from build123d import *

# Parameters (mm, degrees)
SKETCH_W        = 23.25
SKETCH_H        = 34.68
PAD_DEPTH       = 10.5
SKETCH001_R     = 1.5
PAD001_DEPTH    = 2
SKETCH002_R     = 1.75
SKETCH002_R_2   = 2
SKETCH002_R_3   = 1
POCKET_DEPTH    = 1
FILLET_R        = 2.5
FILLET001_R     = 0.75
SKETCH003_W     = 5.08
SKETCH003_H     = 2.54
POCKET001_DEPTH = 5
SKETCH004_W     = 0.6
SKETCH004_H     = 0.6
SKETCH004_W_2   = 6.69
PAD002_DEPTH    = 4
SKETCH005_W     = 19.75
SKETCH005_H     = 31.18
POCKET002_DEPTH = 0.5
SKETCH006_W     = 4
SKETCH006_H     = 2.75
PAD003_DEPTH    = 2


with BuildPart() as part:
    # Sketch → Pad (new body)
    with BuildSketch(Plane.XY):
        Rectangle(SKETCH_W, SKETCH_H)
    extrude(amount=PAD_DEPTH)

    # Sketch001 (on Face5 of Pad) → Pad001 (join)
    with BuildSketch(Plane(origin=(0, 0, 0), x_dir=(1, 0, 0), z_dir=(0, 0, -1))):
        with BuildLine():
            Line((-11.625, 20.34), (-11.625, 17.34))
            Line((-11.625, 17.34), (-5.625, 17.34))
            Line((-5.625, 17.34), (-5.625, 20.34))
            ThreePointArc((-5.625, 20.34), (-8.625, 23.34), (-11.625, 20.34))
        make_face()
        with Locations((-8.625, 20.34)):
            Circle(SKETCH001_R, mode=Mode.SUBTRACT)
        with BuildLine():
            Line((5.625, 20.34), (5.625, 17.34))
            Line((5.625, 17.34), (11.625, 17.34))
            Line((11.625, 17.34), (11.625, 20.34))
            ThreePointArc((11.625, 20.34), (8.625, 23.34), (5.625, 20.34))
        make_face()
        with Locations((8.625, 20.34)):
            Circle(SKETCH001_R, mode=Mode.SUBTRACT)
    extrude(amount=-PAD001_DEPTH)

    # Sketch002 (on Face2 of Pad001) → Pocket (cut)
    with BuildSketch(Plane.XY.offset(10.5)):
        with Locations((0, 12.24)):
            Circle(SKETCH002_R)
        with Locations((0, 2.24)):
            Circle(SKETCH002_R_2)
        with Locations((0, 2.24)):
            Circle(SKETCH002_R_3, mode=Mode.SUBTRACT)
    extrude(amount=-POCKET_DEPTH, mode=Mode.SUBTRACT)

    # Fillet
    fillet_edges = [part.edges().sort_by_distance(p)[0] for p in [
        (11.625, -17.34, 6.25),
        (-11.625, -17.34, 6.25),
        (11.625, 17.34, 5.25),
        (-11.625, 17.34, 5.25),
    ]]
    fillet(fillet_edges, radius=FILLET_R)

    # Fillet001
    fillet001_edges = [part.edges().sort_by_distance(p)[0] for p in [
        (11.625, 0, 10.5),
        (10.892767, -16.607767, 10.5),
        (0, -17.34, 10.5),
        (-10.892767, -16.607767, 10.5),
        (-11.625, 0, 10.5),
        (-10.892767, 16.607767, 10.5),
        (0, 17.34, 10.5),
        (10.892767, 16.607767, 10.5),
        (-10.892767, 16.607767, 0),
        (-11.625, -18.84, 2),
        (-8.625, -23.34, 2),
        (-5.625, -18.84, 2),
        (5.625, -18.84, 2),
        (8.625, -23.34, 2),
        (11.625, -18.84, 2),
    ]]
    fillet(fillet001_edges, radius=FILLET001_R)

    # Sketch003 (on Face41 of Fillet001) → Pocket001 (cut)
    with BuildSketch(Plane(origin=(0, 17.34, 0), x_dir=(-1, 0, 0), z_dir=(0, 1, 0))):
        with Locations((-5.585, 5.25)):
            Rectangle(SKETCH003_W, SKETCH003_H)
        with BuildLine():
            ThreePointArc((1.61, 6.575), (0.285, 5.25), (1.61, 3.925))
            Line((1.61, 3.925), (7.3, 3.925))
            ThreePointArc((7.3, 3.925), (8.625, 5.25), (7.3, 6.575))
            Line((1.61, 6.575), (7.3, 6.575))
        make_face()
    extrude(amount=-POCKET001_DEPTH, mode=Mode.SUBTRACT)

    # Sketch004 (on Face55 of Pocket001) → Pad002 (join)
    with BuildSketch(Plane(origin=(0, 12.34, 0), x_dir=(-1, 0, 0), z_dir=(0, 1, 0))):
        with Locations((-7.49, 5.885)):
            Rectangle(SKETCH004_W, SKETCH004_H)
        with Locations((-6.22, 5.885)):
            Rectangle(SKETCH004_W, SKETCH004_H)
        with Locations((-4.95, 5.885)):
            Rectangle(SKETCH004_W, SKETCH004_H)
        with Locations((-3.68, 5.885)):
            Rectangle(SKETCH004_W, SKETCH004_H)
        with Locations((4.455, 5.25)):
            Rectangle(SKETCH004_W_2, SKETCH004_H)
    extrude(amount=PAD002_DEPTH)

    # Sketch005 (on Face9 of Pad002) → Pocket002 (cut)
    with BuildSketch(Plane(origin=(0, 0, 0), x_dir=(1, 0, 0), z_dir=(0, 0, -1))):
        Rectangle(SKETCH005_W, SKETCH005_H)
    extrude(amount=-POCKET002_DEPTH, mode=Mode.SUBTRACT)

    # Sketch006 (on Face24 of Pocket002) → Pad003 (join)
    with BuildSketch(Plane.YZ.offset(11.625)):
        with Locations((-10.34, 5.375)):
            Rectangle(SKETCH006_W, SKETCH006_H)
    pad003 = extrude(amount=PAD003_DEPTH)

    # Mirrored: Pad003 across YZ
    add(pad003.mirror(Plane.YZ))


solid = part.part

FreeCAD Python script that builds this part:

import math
import FreeCAD as App
import Part
import Sketcher


def edges_at(feature, points):
    """Names of the edges that pass closest to the given points."""
    edges = feature.Shape.Edges
    near = lambda p: min(range(len(edges)), key=lambda i: edges[i].distToShape(Part.Vertex(*p))[0])
    return sorted({f"Edge{near(p) + 1}" for p in points})


def add_polygon(sketch, points):
    """Adds a closed chain of lines whose ends are joined by coincident constraints."""
    first, n = sketch.GeometryCount, len(points)
    for a, b in zip(points, points[1:] + points[:1]):
        sketch.addGeometry(Part.LineSegment(App.Vector(*a, 0), App.Vector(*b, 0)), False)
    for i in range(n):
        sketch.addConstraint(Sketcher.Constraint("Coincident", first + i, 2, first + (i + 1) % n, 1))

doc = App.newDocument("Part")
params = doc.addObject("Spreadsheet::Sheet", "Params")
for row, (alias, value) in enumerate([
    ("sketch1_width", "23.25 mm"),
    ("sketch1_height", "34.68 mm"),
    ("pad1_length", "10.5 mm"),
    ("sketch2_diameter", "3 mm"),
    ("sketch2_radius", "3 mm"),
    ("sketch2_height", "3 mm"),
    ("pad2_length", "2 mm"),
    ("sketch3_diameter", "4 mm"),
    ("sketch3_diameter2", "2 mm"),
    ("sketch3_diameter3", "3.5 mm"),
    ("pocket1_length", "1 mm"),
    ("fillet_radius", "2.5 mm"),
    ("fillet2_radius", "0.75 mm"),
    ("sketch4_width", "5.08 mm"),
    ("sketch4_width2", "5.69 mm"),
    ("sketch4_height", "2.54 mm"),
    ("pocket2_length", "5 mm"),
    ("sketch5_width", "0.6 mm"),
    ("sketch5_width2", "6.69 mm"),
    ("pad3_length", "4 mm"),
    ("sketch6_width", "19.75 mm"),
    ("sketch6_height", "31.18 mm"),
    ("pocket3_length", "0.5 mm"),
    ("sketch7_width", "4 mm"),
    ("sketch7_height", "2.75 mm"),
    ("pad4_length", "2 mm"),
], start=1):
    params.set(f"A{row}", alias)
    params.set(f"B{row}", "=" + value)
    params.setAlias(f"B{row}", alias)

body = doc.addObject("PartDesign::Body", "Body")

sketch1 = body.newObject("Sketcher::SketchObject", "Sketch")
sketch1.AttachmentSupport = (doc.getObject("XY_Plane"), [""])
sketch1.MapMode = "FlatFace"
add_polygon(sketch1, [(-12, 17), (-12, -17), (12, -17), (12, 17)])
sketch1.addConstraint([
    Sketcher.Constraint("Vertical", 0),
    Sketcher.Constraint("Horizontal", 1),
    Sketcher.Constraint("Vertical", 2),
    Sketcher.Constraint("Horizontal", 3),
    Sketcher.Constraint("Symmetric", 0, 2, 2, 2, -1, 1),
    Sketcher.Constraint("DistanceX", 1, 1, 1, 2, 23.25),
    Sketcher.Constraint("DistanceY", 0, 2, 0, 1, 34.68),
])
sketch1.setExpression("Constraints[9]", "Params.sketch1_width")
sketch1.setExpression("Constraints[10]", "Params.sketch1_height")
pad1 = body.newObject("PartDesign::Pad", "Pad")
pad1.Profile = sketch1
pad1.setExpression("Length", "Params.pad1_length")

sketch2 = body.newObject("Sketcher::SketchObject", "Sketch001")
sketch2.AttachmentSupport = (doc.getObject("XY_Plane"), [""])
sketch2.MapMode = "FlatFace"
sketch2.addGeometry([
    Part.LineSegment(App.Vector(-11.6, -20.3, 0), App.Vector(-11.6, -17.3, 0)),
    Part.LineSegment(App.Vector(-11.6, -17.3, 0), App.Vector(-5.6, -17.3, 0)),
    Part.LineSegment(App.Vector(-5.6, -17.3, 0), App.Vector(-5.6, -20.3, 0)),
    Part.ArcOfCircle(Part.Circle(App.Vector(-8.6, -20.3, 0), App.Vector(0, 0, 1), 3), math.radians(180), math.radians(360)),
    Part.Circle(App.Vector(-8.6, -20.3, 0), App.Vector(0, 0, 1), 1.5),
    Part.LineSegment(App.Vector(5.6, -20.3, 0), App.Vector(5.6, -17.3, 0)),
    Part.LineSegment(App.Vector(5.6, -17.3, 0), App.Vector(11.6, -17.3, 0)),
    Part.LineSegment(App.Vector(11.6, -17.3, 0), App.Vector(11.6, -20.3, 0)),
    Part.ArcOfCircle(Part.Circle(App.Vector(8.6, -20.3, 0), App.Vector(0, 0, 1), 3), math.radians(180), math.radians(360)),
    Part.Circle(App.Vector(8.6, -20.3, 0), App.Vector(0, 0, 1), 1.5),
], False)
sketch2.addConstraint([
    Sketcher.Constraint("Coincident", 0, 2, 1, 1),
    Sketcher.Constraint("Coincident", 1, 2, 2, 1),
    Sketcher.Constraint("Tangent", 2, 2, 3, 2),
    Sketcher.Constraint("Tangent", 3, 1, 0, 1),
    Sketcher.Constraint("Coincident", 5, 2, 6, 1),
    Sketcher.Constraint("Coincident", 6, 2, 7, 1),
    Sketcher.Constraint("Tangent", 7, 2, 8, 2),
    Sketcher.Constraint("Tangent", 8, 1, 5, 1),
    Sketcher.Constraint("Vertical", 0),
    Sketcher.Constraint("Horizontal", 1),
    Sketcher.Constraint("Vertical", 2),
    Sketcher.Constraint("Vertical", 5),
    Sketcher.Constraint("Horizontal", 6),
    Sketcher.Constraint("Vertical", 7),
    Sketcher.Constraint("Coincident", 4, 3, 3, 3),
    Sketcher.Constraint("Coincident", 9, 3, 8, 3),
    Sketcher.Constraint("Equal", 3, 8),
    Sketcher.Constraint("Equal", 4, 9),
    Sketcher.Constraint("Symmetric", 3, 3, 8, 3, -2),
    Sketcher.Constraint("Horizontal", 1, 2, 5, 2),
    Sketcher.Constraint("Diameter", 4, 3.0),
    Sketcher.Constraint("Radius", 3, 3.0),
    Sketcher.Constraint("DistanceY", 0, 1, 0, 2, 3.0),
    Sketcher.Constraint("DistanceY", 3, 3, -1, 1, 20.34),
    Sketcher.Constraint("DistanceX", 3, 3, 8, 3, 17.25),
])
sketch2.setExpression("Constraints[20]", "Params.sketch2_diameter")
sketch2.setExpression("Constraints[21]", "Params.sketch2_radius")
sketch2.setExpression("Constraints[22]", "Params.sketch2_height")
pad2 = body.newObject("PartDesign::Pad", "Pad001")
pad2.Profile = sketch2
pad2.setExpression("Length", "Params.pad2_length")

sketch3 = body.newObject("Sketcher::SketchObject", "Sketch002")
sketch3.AttachmentSupport = (doc.getObject("XY_Plane"), [""])
sketch3.MapMode = "FlatFace"
sketch3.AttachmentOffset = App.Placement(App.Vector(0, 0, 10.5), App.Rotation())
sketch3.addGeometry([
    Part.Circle(App.Vector(0, 12.2, 0), App.Vector(0, 0, 1), 1.8),
    Part.Circle(App.Vector(0, 2.2, 0), App.Vector(0, 0, 1), 2),
    Part.Circle(App.Vector(0, 2.2, 0), App.Vector(0, 0, 1), 1),
], False)
sketch3.addConstraint([
    Sketcher.Constraint("Coincident", 2, 3, 1, 3),
    Sketcher.Constraint("PointOnObject", 0, 3, -2),
    Sketcher.Constraint("PointOnObject", 1, 3, -2),
    Sketcher.Constraint("Diameter", 1, 4.0),
    Sketcher.Constraint("Diameter", 2, 2.0),
    Sketcher.Constraint("Diameter", 0, 3.5),
    Sketcher.Constraint("DistanceY", 1, 3, 0, 3, 10.0),
    Sketcher.Constraint("DistanceY", -1, 1, 0, 3, 12.24),
])
sketch3.setExpression("Constraints[3]", "Params.sketch3_diameter")
sketch3.setExpression("Constraints[4]", "Params.sketch3_diameter2")
sketch3.setExpression("Constraints[5]", "Params.sketch3_diameter3")
pocket1 = body.newObject("PartDesign::Pocket", "Pocket")
pocket1.Profile = sketch3
pocket1.setExpression("Length", "Params.pocket1_length")
doc.recompute()

fillet = body.newObject("PartDesign::Fillet", "Fillet")
fillet.Base = (pocket1, edges_at(pocket1, [
    (11.625, -17.34, 6.25),
    (-11.625, -17.34, 6.25),
    (11.625, 17.34, 5.25),
    (-11.625, 17.34, 5.25),
]))
fillet.setExpression("Radius", "Params.fillet_radius")
doc.recompute()

fillet2 = body.newObject("PartDesign::Fillet", "Fillet001")
fillet2.Base = (fillet, edges_at(fillet, [
    (11.625, 0, 10.5),
    (10.893, -16.608, 10.5),
    (0, -17.34, 10.5),
    (-10.893, -16.608, 10.5),
    (-11.625, 0, 10.5),
    (-10.893, 16.608, 10.5),
    (0, 17.34, 10.5),
    (10.893, 16.608, 10.5),
    (-10.893, 16.608, 0),
    (-11.625, -17.59, 2),
    (-8.625, -23.34, 2),
    (-5.625, -18.84, 2),
    (5.625, -18.84, 2),
    (8.625, -23.34, 2),
    (11.625, -17.59, 2),
]))
fillet2.setExpression("Radius", "Params.fillet2_radius")

sketch4 = body.newObject("Sketcher::SketchObject", "Sketch003")
sketch4.AttachmentSupport = (doc.getObject("XZ_Plane"), [""])
sketch4.MapMode = "FlatFace"
sketch4.AttachmentOffset = App.Placement(App.Vector(0, 0, -17.34), App.Rotation())
add_polygon(sketch4, [(8.1, 6.5), (8.1, 4), (3, 4), (3, 6.5)])
sketch4.addGeometry(Part.ArcOfCircle(Part.Circle(App.Vector(-1.6, 5.2, 0), App.Vector(0, 0, 1), 1.3), math.radians(-90), math.radians(90)), False)
sketch4.addGeometry(Part.LineSegment(App.Vector(-1.6, 3.9, 0), App.Vector(-7.3, 3.9, 0)), False)
sketch4.addGeometry(Part.ArcOfCircle(Part.Circle(App.Vector(-7.3, 5.2, 0), App.Vector(0, 0, 1), 1.3), math.radians(90), math.radians(270)), False)
sketch4.addGeometry(Part.LineSegment(App.Vector(-7.3, 6.6, 0), App.Vector(-1.6, 6.6, 0)), False)
sketch4.addConstraint([
    Sketcher.Constraint("Tangent", 4, 1, 5, 1),
    Sketcher.Constraint("Tangent", 5, 2, 6, 2),
    Sketcher.Constraint("Tangent", 6, 1, 7, 1),
    Sketcher.Constraint("Tangent", 7, 2, 4, 2),
    Sketcher.Constraint("Vertical", 0),
    Sketcher.Constraint("Horizontal", 1),
    Sketcher.Constraint("Vertical", 2),
    Sketcher.Constraint("Horizontal", 3),
    Sketcher.Constraint("Horizontal", 5),
    Sketcher.Constraint("Horizontal", 7),
    Sketcher.Constraint("Radius", 4, 1.325),
    Sketcher.Constraint("DistanceX", 1, 2, 1, 1, 5.08),
    Sketcher.Constraint("DistanceX", 5, 2, 5, 1, 5.69),
    Sketcher.Constraint("DistanceY", 0, 2, 0, 1, 2.54),
    Sketcher.Constraint("DistanceX", 6, 3, -1, 1, 7.3),
    Sketcher.Constraint("DistanceY", -1, 1, 4, 3, 5.25),
    Sketcher.Constraint("DistanceY", -1, 1, 0, 2, 3.98),
    Sketcher.Constraint("DistanceX", -1, 1, 0, 2, 8.125),
])
sketch4.setExpression("Constraints[15]", "Params.sketch4_width")
sketch4.setExpression("Constraints[16]", "Params.sketch4_width2")
sketch4.setExpression("Constraints[17]", "Params.sketch4_height")
pocket2 = body.newObject("PartDesign::Pocket", "Pocket001")
pocket2.Profile = sketch4
pocket2.setExpression("Length", "Params.pocket2_length")
pocket2.Reversed = True

sketch5 = body.newObject("Sketcher::SketchObject", "Sketch004")
sketch5.AttachmentSupport = (doc.getObject("XZ_Plane"), [""])
sketch5.MapMode = "FlatFace"
sketch5.AttachmentOffset = App.Placement(App.Vector(0, 0, -12.34), App.Rotation())
add_polygon(sketch5, [(7.8, 6.2), (7.8, 5.6), (7.2, 5.6), (7.2, 6.2)])
add_polygon(sketch5, [(6.5, 6.2), (6.5, 5.6), (5.9, 5.6), (5.9, 6.2)])
add_polygon(sketch5, [(5.2, 6.2), (5.2, 5.6), (4.7, 5.6), (4.7, 6.2)])
add_polygon(sketch5, [(4, 6.2), (4, 5.6), (3.4, 5.6), (3.4, 6.2)])
add_polygon(sketch5, [(-1.1, 5.5), (-1.1, 5), (-7.8, 5), (-7.8, 5.5)])
sketch5.addConstraint([
    Sketcher.Constraint("Vertical", 0),
    Sketcher.Constraint("Horizontal", 1),
    Sketcher.Constraint("Vertical", 2),
    Sketcher.Constraint("Horizontal", 3),
    Sketcher.Constraint("Vertical", 4),
    Sketcher.Constraint("Horizontal", 5),
    Sketcher.Constraint("Vertical", 6),
    Sketcher.Constraint("Horizontal", 7),
    Sketcher.Constraint("Vertical", 8),
    Sketcher.Constraint("Horizontal", 9),
    Sketcher.Constraint("Vertical", 10),
    Sketcher.Constraint("Horizontal", 11),
    Sketcher.Constraint("Vertical", 12),
    Sketcher.Constraint("Horizontal", 13),
    Sketcher.Constraint("Vertical", 14),
    Sketcher.Constraint("Horizontal", 15),
    Sketcher.Constraint("Vertical", 16),
    Sketcher.Constraint("Horizontal", 17),
    Sketcher.Constraint("Vertical", 18),
    Sketcher.Constraint("Horizontal", 19),
    Sketcher.Constraint("Horizontal", 1, 2, 4, 2),
    Sketcher.Constraint("Horizontal", 3, 2, 6, 2),
    Sketcher.Constraint("Horizontal", 5, 2, 8, 2),
    Sketcher.Constraint("Horizontal", 7, 2, 10, 2),
    Sketcher.Constraint("Horizontal", 9, 2, 12, 2),
    Sketcher.Constraint("Horizontal", 11, 2, 14, 2),
    Sketcher.Constraint("Equal", 3, 5),
    Sketcher.Constraint("Equal", 7, 9),
    Sketcher.Constraint("Equal", 11, 13),
    Sketcher.Constraint("Equal", 15, 0),
    Sketcher.Constraint("Equal", 14, 16),
    Sketcher.Constraint("DistanceX", 1, 2, 1, 1, 0.6),
    Sketcher.Constraint("DistanceX", 17, 2, 17, 1, 6.69),
    Sketcher.Constraint("DistanceX", 17, 2, -1, 1, 7.8),
    Sketcher.Constraint("DistanceX", -1, 1, 0, 2, 7.79),
    Sketcher.Constraint("DistanceX", -1, 1, 4, 2, 6.52),
    Sketcher.Constraint("DistanceX", -1, 1, 8, 2, 5.25),
    Sketcher.Constraint("DistanceX", -1, 1, 12, 2, 3.98),
    Sketcher.Constraint("DistanceY", -1, 1, 16, 2, 4.95),
    Sketcher.Constraint("DistanceY", -1, 1, 0, 2, 5.585),
])
sketch5.setExpression("Constraints[51]", "Params.sketch5_width")
sketch5.setExpression("Constraints[52]", "Params.sketch5_width2")
pad3 = body.newObject("PartDesign::Pad", "Pad002")
pad3.Profile = sketch5
pad3.setExpression("Length", "Params.pad3_length")
pad3.Reversed = True

sketch6 = body.newObject("Sketcher::SketchObject", "Sketch005")
sketch6.AttachmentSupport = (doc.getObject("XY_Plane"), [""])
sketch6.MapMode = "FlatFace"
add_polygon(sketch6, [(-10, -16), (-10, 16), (10, 16), (10, -16)])
sketch6.addConstraint([
    Sketcher.Constraint("Vertical", 0),
    Sketcher.Constraint("Horizontal", 1),
    Sketcher.Constraint("Vertical", 2),
    Sketcher.Constraint("Horizontal", 3),
    Sketcher.Constraint("Symmetric", 0, 2, 2, 2, -1, 1),
    Sketcher.Constraint("DistanceX", 1, 1, 1, 2, 19.75),
    Sketcher.Constraint("DistanceY", 0, 1, 0, 2, 31.18),
])
sketch6.setExpression("Constraints[9]", "Params.sketch6_width")
sketch6.setExpression("Constraints[10]", "Params.sketch6_height")
pocket3 = body.newObject("PartDesign::Pocket", "Pocket002")
pocket3.Profile = sketch6
pocket3.setExpression("Length", "Params.pocket3_length")
pocket3.Reversed = True

sketch7 = body.newObject("Sketcher::SketchObject", "Sketch006")
sketch7.AttachmentSupport = (doc.getObject("YZ_Plane"), [""])
sketch7.MapMode = "FlatFace"
sketch7.AttachmentOffset = App.Placement(App.Vector(0, 0, 11.625), App.Rotation())
add_polygon(sketch7, [(-12.3, 6.8), (-12.3, 4), (-8.3, 4), (-8.3, 6.8)])
sketch7.addConstraint([
    Sketcher.Constraint("Vertical", 0),
    Sketcher.Constraint("Horizontal", 1),
    Sketcher.Constraint("Vertical", 2),
    Sketcher.Constraint("Horizontal", 3),
    Sketcher.Constraint("DistanceX", 1, 1, 1, 2, 4.0),
    Sketcher.Constraint("DistanceY", -1, 1, 0, 2, 4.0),
    Sketcher.Constraint("DistanceY", 0, 2, 0, 1, 2.75),
    Sketcher.Constraint("DistanceX", 0, 2, -1, 1, 12.34),
])
sketch7.setExpression("Constraints[8]", "Params.sketch7_width")
sketch7.setExpression("Constraints[10]", "Params.sketch7_height")
pad4 = body.newObject("PartDesign::Pad", "Pad003")
pad4.Profile = sketch7
pad4.setExpression("Length", "Params.pad4_length")
doc.recompute()

mirrored = body.newObject("PartDesign::Mirrored", "Mirrored")
mirrored.Originals = [pad4]
mirrored.MirrorPlane = (doc.getObject("YZ_Plane"), [""])
body.Tip = mirrored

doc.recompute()
